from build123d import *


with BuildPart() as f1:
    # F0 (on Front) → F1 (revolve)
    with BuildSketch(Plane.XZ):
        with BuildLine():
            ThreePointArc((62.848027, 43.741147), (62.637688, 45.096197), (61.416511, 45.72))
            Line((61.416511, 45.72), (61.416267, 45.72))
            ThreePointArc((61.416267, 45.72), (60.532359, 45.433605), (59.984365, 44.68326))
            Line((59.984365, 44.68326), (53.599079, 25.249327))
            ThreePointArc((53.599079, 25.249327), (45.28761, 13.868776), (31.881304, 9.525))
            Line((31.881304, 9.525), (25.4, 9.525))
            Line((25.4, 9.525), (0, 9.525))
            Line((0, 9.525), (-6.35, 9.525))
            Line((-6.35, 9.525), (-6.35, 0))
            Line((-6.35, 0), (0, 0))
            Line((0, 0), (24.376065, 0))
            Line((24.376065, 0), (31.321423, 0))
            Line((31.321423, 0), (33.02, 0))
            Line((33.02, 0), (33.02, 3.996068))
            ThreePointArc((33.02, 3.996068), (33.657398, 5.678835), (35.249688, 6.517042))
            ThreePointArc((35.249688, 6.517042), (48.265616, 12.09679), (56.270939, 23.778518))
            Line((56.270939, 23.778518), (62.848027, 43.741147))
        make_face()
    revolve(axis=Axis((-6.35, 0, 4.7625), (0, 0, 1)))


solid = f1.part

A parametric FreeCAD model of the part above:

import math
import FreeCAD as App
import Part
import Sketcher
Q = App.Units.Quantity

doc = App.newDocument("Part")
body = doc.addObject("PartDesign::Body", "Body")

sketch1 = body.newObject("Sketcher::SketchObject", "Sketch")
sketch1.AttachmentSupport = (doc.getObject("XZ_Plane"), [""])
sketch1.MapMode = "FlatFace"
sketch1.addGeometry(Part.ArcOfCircle(Part.Circle(App.Vector(61.41651, 44.21279, 0), App.Vector(0, 0, 1), 1.50721), math.radians(-18), math.radians(90)), False)
sketch1.addGeometry(Part.LineSegment(App.Vector(61.41651, 45.72, 0), App.Vector(61.41627, 45.72, 0)), False)
sketch1.addGeometry(Part.ArcOfCircle(Part.Circle(App.Vector(61.41627, 44.21279, 0), App.Vector(0, 0, 1), 1.50721), math.radians(90), math.radians(162)), False)
sketch1.addGeometry(Part.LineSegment(App.Vector(59.98436, 44.68326, 0), App.Vector(53.59908, 25.24933, 0)), False)
sketch1.addGeometry(Part.ArcOfCircle(Part.Circle(App.Vector(31.8813, 32.385, 0), App.Vector(0, 0, 1), 22.86), math.radians(-90), math.radians(-18)), False)
sketch1.addGeometry(Part.LineSegment(App.Vector(31.8813, 9.525, 0), App.Vector(-6.35, 9.525, 0)), False)
sketch1.addGeometry(Part.LineSegment(App.Vector(-6.35, 9.525, 0), App.Vector(-6.35, 0, 0)), False)
sketch1.addGeometry(Part.LineSegment(App.Vector(-6.35, 0, 0), App.Vector(33.02, 0, 0)), False)
sketch1.addGeometry(Part.LineSegment(App.Vector(33.02, 0, 0), App.Vector(33.02, 3.99607, 0)), False)
sketch1.addGeometry(Part.ArcOfCircle(Part.Circle(App.Vector(35.56, 3.99607, 0), App.Vector(0, 0, 1), 2.54), math.radians(97), math.radians(180)), False)
sketch1.addGeometry(Part.ArcOfCircle(Part.Circle(App.Vector(32.14657, 31.72678, 0), App.Vector(0, 0, 1), 25.4), math.radians(-83), math.radians(-18)), False)
sketch1.addGeometry(Part.LineSegment(App.Vector(56.27094, 23.77852, 0), App.Vector(62.84803, 43.74115, 0)), False)
sketch1.addGeometry(Part.LineSegment(App.Vector(-6.35, 0, 0), App.Vector(-6.35, 45.72, 0)), True)
sketch1.addConstraint(Sketcher.Constraint("Tangent", 0, 2, 1, 1))
sketch1.addConstraint(Sketcher.Constraint("Coincident", 1, 2, 2, 1))
sketch1.addConstraint(Sketcher.Constraint("Tangent", 2, 2, 3, 1))
sketch1.addConstraint(Sketcher.Constraint("Tangent", 3, 2, 4, 2))
sketch1.addConstraint(Sketcher.Constraint("Tangent", 4, 1, 5, 1))
sketch1.addConstraint(Sketcher.Constraint("Coincident", 5, 2, 6, 1))
sketch1.addConstraint(Sketcher.Constraint("Coincident", 6, 2, 7, 1))
sketch1.addConstraint(Sketcher.Constraint("Coincident", 7, 2, 8, 1))
sketch1.addConstraint(Sketcher.Constraint("Tangent", 8, 2, 9, 2))
sketch1.addConstraint(Sketcher.Constraint("Tangent", 9, 1, 10, 1))
sketch1.addConstraint(Sketcher.Constraint("Tangent", 10, 2, 11, 1))
sketch1.addConstraint(Sketcher.Constraint("Tangent", 11, 2, 0, 1))
sketch1.addConstraint(Sketcher.Constraint("Horizontal", 5))
sketch1.addConstraint(Sketcher.Constraint("Vertical", 6))
sketch1.addConstraint(Sketcher.Constraint("Horizontal", 7))
sketch1.addConstraint(Sketcher.Constraint("Vertical", 8))
sketch1.addConstraint(Sketcher.Constraint("Vertical", 12))
sketch1.addConstraint(Sketcher.Constraint("Coincident", 12, 1, 6, 2))
sketch1.addConstraint(Sketcher.Constraint("Equal", 0, 2))
sketch1.addConstraint(Sketcher.Constraint("PointOnObject", 6, 2, -1))
sketch1.addConstraint(Sketcher.Constraint("Horizontal", 1, 2, 12, 2))
sketch1.addConstraint(Sketcher.Constraint("Vertical", 2, 3, 1, 2))
sketch1.addConstraint(Sketcher.Constraint("Radius", 10, Q("1.0000001 in")))
sketch1.addConstraint(Sketcher.Constraint("Radius", 4, Q("0.9 in")))
sketch1.addConstraint(Sketcher.Constraint("Radius", 9, Q("0.1000001 in")))
sketch1.addConstraint(Sketcher.Constraint("DistanceY", 12, 1, 12, 2, Q("1.8 in")))
sketch1.addConstraint(Sketcher.Constraint("DistanceX", 7, 1, 7, 2, Q("1.55 in")))
sketch1.addConstraint(Sketcher.Constraint("DistanceX", -1, 1, 9, 3, Q("1.4000001 in")))
sketch1.addConstraint(Sketcher.Constraint("DistanceY", 6, 2, 6, 1, Q("0.375 in")))
sketch1.addConstraint(Sketcher.Constraint("Radius", 0, Q("1.507212 mm")))
sketch1.addConstraint(Sketcher.Constraint("DistanceX", -1, 1, 3, 2, Q("2.1102 in")))
sketch1.addConstraint(Sketcher.Constraint("DistanceY", 8, 1, 8, 2, Q("3.996068 mm")))
sketch1.addConstraint(Sketcher.Constraint("DistanceX", 4, 3, 9, 3, Q("3.678698 mm")))
sketch1.addConstraint(Sketcher.Constraint("DistanceX", 10, 3, 2, 3, Q("29.269699 mm")))
sketch1.addConstraint(Sketcher.Constraint("DistanceX", 1, 2, 1, 1, Q("0.000244 mm")))
sketch1.addConstraint(Sketcher.Constraint("DistanceX", -1, 1, 0, 3, Q("61.41651 mm")))
revolution = body.newObject("PartDesign::Revolution", "Revolution")
revolution.Profile = sketch1
revolution.ReferenceAxis = (sketch1, ["Axis0"])
revolution.Angle = 360

doc.recompute()
